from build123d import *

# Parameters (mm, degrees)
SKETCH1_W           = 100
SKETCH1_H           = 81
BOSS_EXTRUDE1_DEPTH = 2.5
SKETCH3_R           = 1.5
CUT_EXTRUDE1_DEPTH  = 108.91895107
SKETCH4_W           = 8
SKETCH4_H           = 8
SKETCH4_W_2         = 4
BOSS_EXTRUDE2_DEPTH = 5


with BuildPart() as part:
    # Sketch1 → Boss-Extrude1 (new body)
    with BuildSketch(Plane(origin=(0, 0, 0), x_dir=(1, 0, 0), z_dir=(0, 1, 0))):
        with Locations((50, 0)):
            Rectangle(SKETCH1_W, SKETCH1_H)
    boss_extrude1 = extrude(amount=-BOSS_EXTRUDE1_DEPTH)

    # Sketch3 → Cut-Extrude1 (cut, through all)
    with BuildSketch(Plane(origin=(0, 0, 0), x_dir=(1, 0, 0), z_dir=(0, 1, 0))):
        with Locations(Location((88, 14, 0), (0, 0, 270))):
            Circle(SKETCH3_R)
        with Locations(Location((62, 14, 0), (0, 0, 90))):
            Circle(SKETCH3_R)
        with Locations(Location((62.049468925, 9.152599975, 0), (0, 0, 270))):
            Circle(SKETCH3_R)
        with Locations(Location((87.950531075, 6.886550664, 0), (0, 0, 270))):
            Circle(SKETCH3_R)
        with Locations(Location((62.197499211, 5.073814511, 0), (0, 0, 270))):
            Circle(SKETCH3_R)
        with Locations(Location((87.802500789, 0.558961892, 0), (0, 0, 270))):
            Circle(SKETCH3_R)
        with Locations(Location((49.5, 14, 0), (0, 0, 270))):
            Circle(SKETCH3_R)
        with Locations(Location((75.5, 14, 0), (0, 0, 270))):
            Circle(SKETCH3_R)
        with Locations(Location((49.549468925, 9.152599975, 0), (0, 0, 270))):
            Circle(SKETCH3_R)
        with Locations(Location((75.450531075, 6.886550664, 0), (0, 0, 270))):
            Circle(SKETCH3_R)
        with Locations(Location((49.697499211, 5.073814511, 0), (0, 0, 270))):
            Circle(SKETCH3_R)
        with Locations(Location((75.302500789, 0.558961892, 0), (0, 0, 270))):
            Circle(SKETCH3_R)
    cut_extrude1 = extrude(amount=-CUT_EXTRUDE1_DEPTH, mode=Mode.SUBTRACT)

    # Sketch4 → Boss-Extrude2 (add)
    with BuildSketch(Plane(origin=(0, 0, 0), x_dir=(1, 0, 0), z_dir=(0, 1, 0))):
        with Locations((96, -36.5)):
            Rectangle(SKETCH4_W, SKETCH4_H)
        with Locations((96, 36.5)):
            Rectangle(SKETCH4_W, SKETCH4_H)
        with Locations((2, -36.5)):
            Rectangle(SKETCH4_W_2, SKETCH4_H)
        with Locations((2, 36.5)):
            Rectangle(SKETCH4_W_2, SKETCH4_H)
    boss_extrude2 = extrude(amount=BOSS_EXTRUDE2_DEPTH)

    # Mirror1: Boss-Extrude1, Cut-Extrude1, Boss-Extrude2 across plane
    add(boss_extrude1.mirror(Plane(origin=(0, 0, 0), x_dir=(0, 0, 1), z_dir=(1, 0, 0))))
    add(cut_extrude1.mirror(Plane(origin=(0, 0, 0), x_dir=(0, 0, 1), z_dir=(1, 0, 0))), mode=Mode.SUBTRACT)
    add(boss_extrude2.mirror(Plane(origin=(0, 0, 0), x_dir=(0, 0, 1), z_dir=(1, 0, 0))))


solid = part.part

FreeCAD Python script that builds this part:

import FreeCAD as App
import Part
import Sketcher

V = App.Vector


def add_polygon(sketch, points):
    """Adds a closed chain of lines whose ends are joined by coincident constraints."""
    first, n = sketch.GeometryCount, len(points)
    for a, b in zip(points, points[1:] + points[:1]):
        sketch.addGeometry(Part.LineSegment(App.Vector(*a, 0), App.Vector(*b, 0)), False)
    for i in range(n):
        sketch.addConstraint(Sketcher.Constraint("Coincident", first + i, 2, first + (i + 1) % n, 1))

doc = App.newDocument("Part")
body = doc.addObject("PartDesign::Body", "Body")

sketch1 = body.newObject("Sketcher::SketchObject", "Sketch")
sketch1.AttachmentSupport = (doc.getObject("XZ_Plane"), [""])
sketch1.MapMode = "FlatFace"
add_polygon(sketch1, [(0, -40), (0, 40), (100, 40), (100, -40)])
sketch1.addConstraint([
    Sketcher.Constraint("Vertical", 0),
    Sketcher.Constraint("Horizontal", 1),
    Sketcher.Constraint("Vertical", 2),
    Sketcher.Constraint("Horizontal", 3),
    Sketcher.Constraint("Symmetric", 0, 2, 3, 2, -1, 1),
    Sketcher.Constraint("DistanceX", 1, 1, 1, 2, 100.0),
    Sketcher.Constraint("DistanceY", 0, 1, 0, 2, 81.0),
])
pad1 = body.newObject("PartDesign::Pad", "Pad")
pad1.Profile = sketch1
pad1.Length = 2.5

sketch2 = body.newObject("Sketcher::SketchObject", "Sketch001")
sketch2.AttachmentSupport = (doc.getObject("XZ_Plane"), [""])
sketch2.MapMode = "FlatFace"
sketch2.addGeometry([
    Part.Circle(V(88, -14, 0), V(0, 0, 1), 1.5),
    Part.Circle(V(62, -14, 0), V(0, 0, 1), 1.5),
    Part.Circle(V(62, -9.2, 0), V(0, 0, 1), 1.5),
    Part.Circle(V(88, -6.9, 0), V(0, 0, 1), 1.5),
    Part.Circle(V(62.2, -5.1, 0), V(0, 0, 1), 1.5),
    Part.Circle(V(87.8, -0.6, 0), V(0, 0, 1), 1.5),
    Part.Circle(V(49.5, -14, 0), V(0, 0, 1), 1.5),
    Part.Circle(V(75.5, -14, 0), V(0, 0, 1), 1.5),
    Part.Circle(V(49.5, -9.2, 0), V(0, 0, 1), 1.5),
    Part.Circle(V(75.5, -6.9, 0), V(0, 0, 1), 1.5),
    Part.Circle(V(49.7, -5.1, 0), V(0, 0, 1), 1.5),
    Part.Circle(V(75.3, -0.6, 0), V(0, 0, 1), 1.5),
], False)
sketch2.addConstraint([
    Sketcher.Constraint("Equal", 0, 1),
    Sketcher.Constraint("Equal", 1, 2),
    Sketcher.Constraint("Equal", 2, 3),
    Sketcher.Constraint("Equal", 3, 4),
    Sketcher.Constraint("Equal", 4, 5),
    Sketcher.Constraint("Equal", 5, 6),
    Sketcher.Constraint("Equal", 6, 7),
    Sketcher.Constraint("Equal", 7, 8),
    Sketcher.Constraint("Equal", 8, 9),
    Sketcher.Constraint("Equal", 9, 10),
    Sketcher.Constraint("Equal", 10, 11),
    Sketcher.Constraint("Horizontal", 0, 3, 1, 3),
    Sketcher.Constraint("Horizontal", 1, 3, 6, 3),
    Sketcher.Constraint("Horizontal", 6, 3, 7, 3),
    Sketcher.Constraint("Horizontal", 2, 3, 8, 3),
    Sketcher.Constraint("Horizontal", 3, 3, 9, 3),
    Sketcher.Constraint("Horizontal", 4, 3, 10, 3),
    Sketcher.Constraint("Horizontal", 5, 3, 11, 3),
    Sketcher.Constraint("Diameter", 0, 3.0),
    Sketcher.Constraint("DistanceX", -1, 1, 0, 3, 88.0),
    Sketcher.Constraint("DistanceY", 0, 3, -1, 1, 14.0),
    Sketcher.Constraint("DistanceX", -1, 1, 1, 3, 62.0),
    Sketcher.Constraint("DistanceX", -1, 1, 6, 3, 49.5),
    Sketcher.Constraint("DistanceX", -1, 1, 7, 3, 75.5),
    Sketcher.Constraint("DistanceX", 8, 3, 2, 3, 12.5),
    Sketcher.Constraint("DistanceX", 9, 3, 3, 3, 12.5),
    Sketcher.Constraint("DistanceX", 10, 3, 4, 3, 12.5),
    Sketcher.Constraint("DistanceX", 11, 3, 5, 3, 12.5),
    Sketcher.Constraint("DistanceX", 4, 3, 5, 3, 25.605002),
    Sketcher.Constraint("DistanceY", 2, 3, -1, 1, 9.1526),
    Sketcher.Constraint("DistanceX", -1, 1, 4, 3, 62.197499),
    Sketcher.Constraint("DistanceX", -1, 1, 2, 3, 62.049469),
    Sketcher.Constraint("DistanceX", -1, 1, 3, 3, 87.950531),
    Sketcher.Constraint("DistanceY", 3, 3, -1, 1, 6.886551),
    Sketcher.Constraint("DistanceY", 5, 3, -1, 1, 0.558962),
    Sketcher.Constraint("DistanceY", 4, 3, -1, 1, 5.073815),
])
pocket1 = body.newObject("PartDesign::Pocket", "Pocket")
pocket1.Profile = sketch2
pocket1.Type = "ThroughAll"
pocket1.Reversed = True

sketch3 = body.newObject("Sketcher::SketchObject", "Sketch002")
sketch3.AttachmentSupport = (doc.getObject("XZ_Plane"), [""])
sketch3.MapMode = "FlatFace"
add_polygon(sketch3, [(92, 32.5), (92, 40.5), (100, 40.5), (100, 32.5)])
add_polygon(sketch3, [(92, -40.5), (92, -32.5), (100, -32.5), (100, -40.5)])
add_polygon(sketch3, [(0, 32.5), (0, 40.5), (4, 40.5), (4, 32.5)])
add_polygon(sketch3, [(0, -40.5), (0, -32.5), (4, -32.5), (4, -40.5)])
sketch3.addConstraint([
    Sketcher.Constraint("Vertical", 0),
    Sketcher.Constraint("Horizontal", 1),
    Sketcher.Constraint("Vertical", 2),
    Sketcher.Constraint("Horizontal", 3),
    Sketcher.Constraint("Vertical", 4),
    Sketcher.Constraint("Horizontal", 5),
    Sketcher.Constraint("Vertical", 6),
    Sketcher.Constraint("Horizontal", 7),
    Sketcher.Constraint("Vertical", 8),
    Sketcher.Constraint("Horizontal", 9),
    Sketcher.Constraint("Vertical", 10),
    Sketcher.Constraint("Horizontal", 11),
    Sketcher.Constraint("Vertical", 12),
    Sketcher.Constraint("Horizontal", 13),
    Sketcher.Constraint("Vertical", 14),
    Sketcher.Constraint("Horizontal", 15),
    Sketcher.Constraint("Symmetric", 11, 2, 12, 2, -1, 1),
    Sketcher.Constraint("Symmetric", 3, 2, 4, 2, -1),
    Sketcher.Constraint("Symmetric", 1, 2, 6, 2, -1),
    Sketcher.Constraint("Symmetric", 9, 2, 14, 2, -1),
    Sketcher.Constraint("PointOnObject", 8, 2, -2),
    Sketcher.Constraint("Horizontal", 1, 2, 8, 2),
    Sketcher.Constraint("Horizontal", 3, 2, 10, 2),
    Sketcher.Constraint("Equal", 7, 0),
    Sketcher.Constraint("DistanceX", 1, 1, 1, 2, 8.0),
    Sketcher.Constraint("DistanceX", 9, 1, 9, 2, 4.0),
    Sketcher.Constraint("DistanceX", -1, 1, 0, 2, 92.0),
    Sketcher.Constraint("DistanceY", 4, 2, 3, 2, 65.0),
])
pad2 = body.newObject("PartDesign::Pad", "Pad001")
pad2.Profile = sketch3
pad2.Length = 5
pad2.Reversed = True
doc.recompute()

mirrored = body.newObject("PartDesign::Mirrored", "Mirrored")
mirrored.Originals = [pad1, pocket1, pad2]
mirrored.MirrorPlane = (doc.getObject("YZ_Plane"), [""])
body.Tip = mirrored

doc.recompute()
